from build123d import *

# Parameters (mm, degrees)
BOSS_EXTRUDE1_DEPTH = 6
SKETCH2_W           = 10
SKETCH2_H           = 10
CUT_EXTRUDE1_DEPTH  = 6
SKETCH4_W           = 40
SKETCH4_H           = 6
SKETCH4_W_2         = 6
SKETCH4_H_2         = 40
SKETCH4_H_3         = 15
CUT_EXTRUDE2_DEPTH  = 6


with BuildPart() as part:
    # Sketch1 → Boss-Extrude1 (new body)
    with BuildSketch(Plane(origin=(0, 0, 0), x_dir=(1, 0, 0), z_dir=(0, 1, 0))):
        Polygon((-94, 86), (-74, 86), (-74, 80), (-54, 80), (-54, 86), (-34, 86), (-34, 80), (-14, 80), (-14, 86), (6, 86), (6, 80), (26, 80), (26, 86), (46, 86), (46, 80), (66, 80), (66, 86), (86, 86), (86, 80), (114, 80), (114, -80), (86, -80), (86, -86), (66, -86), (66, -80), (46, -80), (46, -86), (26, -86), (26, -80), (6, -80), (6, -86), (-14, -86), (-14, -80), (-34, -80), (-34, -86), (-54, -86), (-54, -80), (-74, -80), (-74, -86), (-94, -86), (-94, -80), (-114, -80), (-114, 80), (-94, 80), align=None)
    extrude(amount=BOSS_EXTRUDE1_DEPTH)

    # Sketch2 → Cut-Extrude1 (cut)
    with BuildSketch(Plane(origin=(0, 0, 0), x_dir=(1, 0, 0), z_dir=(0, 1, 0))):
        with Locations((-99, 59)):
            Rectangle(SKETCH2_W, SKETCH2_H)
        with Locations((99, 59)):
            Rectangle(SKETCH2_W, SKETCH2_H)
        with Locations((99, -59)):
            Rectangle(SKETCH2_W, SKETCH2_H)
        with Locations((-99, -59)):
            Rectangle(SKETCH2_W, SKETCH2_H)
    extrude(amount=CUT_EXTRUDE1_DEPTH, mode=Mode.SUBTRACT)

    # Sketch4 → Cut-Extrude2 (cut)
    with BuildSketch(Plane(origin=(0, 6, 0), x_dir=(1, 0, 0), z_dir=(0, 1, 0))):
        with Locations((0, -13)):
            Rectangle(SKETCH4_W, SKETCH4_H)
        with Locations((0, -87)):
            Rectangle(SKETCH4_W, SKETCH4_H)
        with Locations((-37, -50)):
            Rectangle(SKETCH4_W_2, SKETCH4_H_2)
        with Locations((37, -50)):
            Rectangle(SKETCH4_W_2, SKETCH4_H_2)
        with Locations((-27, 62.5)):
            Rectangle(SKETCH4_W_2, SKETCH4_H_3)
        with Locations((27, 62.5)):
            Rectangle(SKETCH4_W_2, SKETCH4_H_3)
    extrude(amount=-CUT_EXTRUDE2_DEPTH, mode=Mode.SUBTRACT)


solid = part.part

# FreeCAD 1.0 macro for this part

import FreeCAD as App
import Part
import Sketcher
Q = App.Units.Quantity


def add_polygon(sketch, points):
    """Adds a closed chain of lines whose ends are joined by coincident constraints."""
    first, n = sketch.GeometryCount, len(points)
    for a, b in zip(points, points[1:] + points[:1]):
        sketch.addGeometry(Part.LineSegment(App.Vector(*a, 0), App.Vector(*b, 0)), False)
    for i in range(n):
        sketch.addConstraint(Sketcher.Constraint("Coincident", first + i, 2, first + (i + 1) % n, 1))

doc = App.newDocument("Part")
body = doc.addObject("PartDesign::Body", "Body")

# Sketch on XZ plane
sketch1 = body.newObject("Sketcher::SketchObject", "Sketch")
sketch1.AttachmentSupport = (doc.getObject("XZ_Plane"), [""])
sketch1.MapMode = "FlatFace"
add_polygon(sketch1, [(-74, -86), (-94, -86), (-94, -80), (-114, -80), (-114, 80), (-94, 80), (-94, 86), (-74, 86), (-74, 80), (-54, 80), (-54, 86), (-34, 86), (-34, 80), (-14, 80), (-14, 86), (6, 86), (6, 80), (26, 80), (26, 86), (46, 86), (46, 80), (66, 80), (66, 86), (86, 86), (86, 80), (114, 80), (114, -80), (86, -80), (86, -86), (66, -86), (66, -80), (46, -80), (46, -86), (26, -86), (26, -80), (6, -80), (6, -86), (-14, -86), (-14, -80), (-34, -80), (-34, -86), (-54, -86), (-54, -80), (-74, -80)])  # lines 0-43
sketch1.addConstraint(Sketcher.Constraint("Horizontal", 0))
sketch1.addConstraint(Sketcher.Constraint("Vertical", 1))
sketch1.addConstraint(Sketcher.Constraint("Horizontal", 2))
sketch1.addConstraint(Sketcher.Constraint("Vertical", 3))
sketch1.addConstraint(Sketcher.Constraint("Horizontal", 4))
sketch1.addConstraint(Sketcher.Constraint("Vertical", 5))
sketch1.addConstraint(Sketcher.Constraint("Horizontal", 6))
sketch1.addConstraint(Sketcher.Constraint("Vertical", 7))
sketch1.addConstraint(Sketcher.Constraint("Horizontal", 8))
sketch1.addConstraint(Sketcher.Constraint("Vertical", 9))
sketch1.addConstraint(Sketcher.Constraint("Horizontal", 10))
sketch1.addConstraint(Sketcher.Constraint("Vertical", 11))
sketch1.addConstraint(Sketcher.Constraint("Horizontal", 12))
sketch1.addConstraint(Sketcher.Constraint("Vertical", 13))
sketch1.addConstraint(Sketcher.Constraint("Horizontal", 14))
sketch1.addConstraint(Sketcher.Constraint("Vertical", 15))
sketch1.addConstraint(Sketcher.Constraint("Horizontal", 16))
sketch1.addConstraint(Sketcher.Constraint("Vertical", 17))
sketch1.addConstraint(Sketcher.Constraint("Horizontal", 18))
sketch1.addConstraint(Sketcher.Constraint("Vertical", 19))
sketch1.addConstraint(Sketcher.Constraint("Horizontal", 20))
sketch1.addConstraint(Sketcher.Constraint("Vertical", 21))
sketch1.addConstraint(Sketcher.Constraint("Horizontal", 22))
sketch1.addConstraint(Sketcher.Constraint("Vertical", 23))
sketch1.addConstraint(Sketcher.Constraint("Horizontal", 24))
sketch1.addConstraint(Sketcher.Constraint("Vertical", 25))
sketch1.addConstraint(Sketcher.Constraint("Horizontal", 26))
sketch1.addConstraint(Sketcher.Constraint("Vertical", 27))
sketch1.addConstraint(Sketcher.Constraint("Horizontal", 28))
sketch1.addConstraint(Sketcher.Constraint("Vertical", 29))
sketch1.addConstraint(Sketcher.Constraint("Horizontal", 30))
sketch1.addConstraint(Sketcher.Constraint("Vertical", 31))
sketch1.addConstraint(Sketcher.Constraint("Horizontal", 32))
sketch1.addConstraint(Sketcher.Constraint("Vertical", 33))
sketch1.addConstraint(Sketcher.Constraint("Horizontal", 34))
sketch1.addConstraint(Sketcher.Constraint("Vertical", 35))
sketch1.addConstraint(Sketcher.Constraint("Horizontal", 36))
sketch1.addConstraint(Sketcher.Constraint("Vertical", 37))
sketch1.addConstraint(Sketcher.Constraint("Horizontal", 38))
sketch1.addConstraint(Sketcher.Constraint("Vertical", 39))
sketch1.addConstraint(Sketcher.Constraint("Horizontal", 40))
sketch1.addConstraint(Sketcher.Constraint("Vertical", 41))
sketch1.addConstraint(Sketcher.Constraint("Horizontal", 42))
sketch1.addConstraint(Sketcher.Constraint("Vertical", 43))
sketch1.addConstraint(Sketcher.Constraint("Symmetric", 2, 2, 24, 2, -1, 1))
sketch1.addConstraint(Sketcher.Constraint("Symmetric", 1, 2, 4, 2, -1))
sketch1.addConstraint(Sketcher.Constraint("Symmetric", 23, 2, 26, 2, -1))
sketch1.addConstraint(Sketcher.Constraint("Symmetric", 21, 2, 28, 2, -1))
sketch1.addConstraint(Sketcher.Constraint("Symmetric", 19, 2, 30, 2, -1))
sketch1.addConstraint(Sketcher.Constraint("Symmetric", 17, 2, 32, 2, -1))
sketch1.addConstraint(Sketcher.Constraint("Symmetric", 15, 2, 34, 2, -1))
sketch1.addConstraint(Sketcher.Constraint("Symmetric", 13, 2, 36, 2, -1))
sketch1.addConstraint(Sketcher.Constraint("Symmetric", 11, 2, 38, 2, -1))
sketch1.addConstraint(Sketcher.Constraint("Symmetric", 9, 2, 40, 2, -1))
sketch1.addConstraint(Sketcher.Constraint("Symmetric", 7, 2, 42, 2, -1))
sketch1.addConstraint(Sketcher.Constraint("Horizontal", 4, 2, 7, 2))
sketch1.addConstraint(Sketcher.Constraint("Horizontal", 6, 2, 9, 2))
sketch1.addConstraint(Sketcher.Constraint("Horizontal", 8, 2, 11, 2))
sketch1.addConstraint(Sketcher.Constraint("Horizontal", 10, 2, 13, 2))
sketch1.addConstraint(Sketcher.Constraint("Horizontal", 12, 2, 15, 2))
sketch1.addConstraint(Sketcher.Constraint("Horizontal", 14, 2, 17, 2))
sketch1.addConstraint(Sketcher.Constraint("Horizontal", 16, 2, 19, 2))
sketch1.addConstraint(Sketcher.Constraint("Horizontal", 18, 2, 21, 2))
sketch1.addConstraint(Sketcher.Constraint("Horizontal", 0, 2, 27, 2))
sketch1.addConstraint(Sketcher.Constraint("Equal", 0, 2))
sketch1.addConstraint(Sketcher.Constraint("Equal", 6, 8))
sketch1.addConstraint(Sketcher.Constraint("Equal", 8, 10))
sketch1.addConstraint(Sketcher.Constraint("Equal", 10, 12))
sketch1.addConstraint(Sketcher.Constraint("Equal", 12, 14))
sketch1.addConstraint(Sketcher.Constraint("Equal", 14, 16))
sketch1.addConstraint(Sketcher.Constraint("Equal", 16, 18))
sketch1.addConstraint(Sketcher.Constraint("Equal", 18, 20))
sketch1.addConstraint(Sketcher.Constraint("Equal", 20, 22))
sketch1.addConstraint(Sketcher.Constraint("DistanceX", 0, 2, 0, 1, Q("20 mm")))
sketch1.addConstraint(Sketcher.Constraint("DistanceX", 24, 1, 24, 2, Q("28 mm")))
sketch1.addConstraint(Sketcher.Constraint("DistanceY", 1, 1, 1, 2, Q("6 mm")))
sketch1.addConstraint(Sketcher.Constraint("DistanceY", 3, 1, 3, 2, Q("160 mm")))
pad1 = body.newObject("PartDesign::Pad", "Pad")
pad1.Profile = sketch1
pad1.Length = 6
pad1.Reversed = True

# Sketch on XZ plane
sketch2 = body.newObject("Sketcher::SketchObject", "Sketch001")
sketch2.AttachmentSupport = (doc.getObject("XZ_Plane"), [""])
sketch2.MapMode = "FlatFace"
add_polygon(sketch2, [(-104, -64), (-104, -54), (-94, -54), (-94, -64)])  # lines 0-3
add_polygon(sketch2, [(94, -64), (94, -54), (104, -54), (104, -64)])  # lines 4-7
add_polygon(sketch2, [(94, 54), (94, 64), (104, 64), (104, 54)])  # lines 8-11
add_polygon(sketch2, [(-104, 54), (-104, 64), (-94, 64), (-94, 54)])  # lines 12-15
sketch2.addConstraint(Sketcher.Constraint("Vertical", 0))
sketch2.addConstraint(Sketcher.Constraint("Horizontal", 1))
sketch2.addConstraint(Sketcher.Constraint("Vertical", 2))
sketch2.addConstraint(Sketcher.Constraint("Horizontal", 3))
sketch2.addConstraint(Sketcher.Constraint("Vertical", 4))
sketch2.addConstraint(Sketcher.Constraint("Horizontal", 5))
sketch2.addConstraint(Sketcher.Constraint("Vertical", 6))
sketch2.addConstraint(Sketcher.Constraint("Horizontal", 7))
sketch2.addConstraint(Sketcher.Constraint("Vertical", 8))
sketch2.addConstraint(Sketcher.Constraint("Horizontal", 9))
sketch2.addConstraint(Sketcher.Constraint("Vertical", 10))
sketch2.addConstraint(Sketcher.Constraint("Horizontal", 11))
sketch2.addConstraint(Sketcher.Constraint("Vertical", 12))
sketch2.addConstraint(Sketcher.Constraint("Horizontal", 13))
sketch2.addConstraint(Sketcher.Constraint("Vertical", 14))
sketch2.addConstraint(Sketcher.Constraint("Horizontal", 15))
sketch2.addConstraint(Sketcher.Constraint("Symmetric", 2, 2, 8, 2, -1, 1))
sketch2.addConstraint(Sketcher.Constraint("Symmetric", 0, 2, 10, 2, -1, 1))
sketch2.addConstraint(Sketcher.Constraint("Symmetric", 6, 2, 12, 2, -1, 1))
sketch2.addConstraint(Sketcher.Constraint("Symmetric", 4, 2, 14, 2, -1, 1))
sketch2.addConstraint(Sketcher.Constraint("Symmetric", 1, 2, 4, 2, -2))
sketch2.addConstraint(Sketcher.Constraint("Symmetric", 3, 2, 6, 2, -2))
sketch2.addConstraint(Sketcher.Constraint("Equal", 15, 0))
sketch2.addConstraint(Sketcher.Constraint("DistanceX", 1, 1, 1, 2, Q("10 mm")))
sketch2.addConstraint(Sketcher.Constraint("DistanceX", 0, 2, -1, 1, Q("104 mm")))
sketch2.addConstraint(Sketcher.Constraint("DistanceY", 0, 2, -1, 1, Q("54 mm")))
pocket1 = body.newObject("PartDesign::Pocket", "Pocket")
pocket1.Profile = sketch2
pocket1.Length = 6

# Sketch on XZ plane
sketch3 = body.newObject("Sketcher::SketchObject", "Sketch002")
sketch3.AttachmentSupport = (doc.getObject("XZ_Plane"), [""])
sketch3.MapMode = "FlatFace"
sketch3.AttachmentOffset = App.Placement(App.Vector(0, 0, -6), App.Rotation())
add_polygon(sketch3, [(-20, 10), (-20, 16), (20, 16), (20, 10)])  # lines 0-3
add_polygon(sketch3, [(-20, 84), (-20, 90), (20, 90), (20, 84)])  # lines 4-7
add_polygon(sketch3, [(-40, 30), (-40, 70), (-34, 70), (-34, 30)])  # lines 8-11
add_polygon(sketch3, [(34, 30), (34, 70), (40, 70), (40, 30)])  # lines 12-15
add_polygon(sketch3, [(-30, -70), (-30, -55), (-24, -55), (-24, -70)])  # lines 16-19
add_polygon(sketch3, [(24, -70), (24, -55), (30, -55), (30, -70)])  # lines 20-23
sketch3.addConstraint(Sketcher.Constraint("Vertical", 0))
sketch3.addConstraint(Sketcher.Constraint("Horizontal", 1))
sketch3.addConstraint(Sketcher.Constraint("Vertical", 2))
sketch3.addConstraint(Sketcher.Constraint("Horizontal", 3))
sketch3.addConstraint(Sketcher.Constraint("Vertical", 4))
sketch3.addConstraint(Sketcher.Constraint("Horizontal", 5))
sketch3.addConstraint(Sketcher.Constraint("Vertical", 6))
sketch3.addConstraint(Sketcher.Constraint("Horizontal", 7))
sketch3.addConstraint(Sketcher.Constraint("Vertical", 8))
sketch3.addConstraint(Sketcher.Constraint("Horizontal", 9))
sketch3.addConstraint(Sketcher.Constraint("Vertical", 10))
sketch3.addConstraint(Sketcher.Constraint("Horizontal", 11))
sketch3.addConstraint(Sketcher.Constraint("Vertical", 12))
sketch3.addConstraint(Sketcher.Constraint("Horizontal", 13))
sketch3.addConstraint(Sketcher.Constraint("Vertical", 14))
sketch3.addConstraint(Sketcher.Constraint("Horizontal", 15))
sketch3.addConstraint(Sketcher.Constraint("Vertical", 16))
sketch3.addConstraint(Sketcher.Constraint("Horizontal", 17))
sketch3.addConstraint(Sketcher.Constraint("Vertical", 18))
sketch3.addConstraint(Sketcher.Constraint("Horizontal", 19))
sketch3.addConstraint(Sketcher.Constraint("Vertical", 20))
sketch3.addConstraint(Sketcher.Constraint("Horizontal", 21))
sketch3.addConstraint(Sketcher.Constraint("Vertical", 22))
sketch3.addConstraint(Sketcher.Constraint("Horizontal", 23))
sketch3.addConstraint(Sketcher.Constraint("Symmetric", 9, 2, 12, 2, -2))
sketch3.addConstraint(Sketcher.Constraint("Symmetric", 11, 2, 14, 2, -2))
sketch3.addConstraint(Sketcher.Constraint("Symmetric", 17, 2, 20, 2, -2))
sketch3.addConstraint(Sketcher.Constraint("Symmetric", 19, 2, 22, 2, -2))
sketch3.addConstraint(Sketcher.Constraint("Vertical", 3, 2, 4, 2))
sketch3.addConstraint(Sketcher.Constraint("Vertical", 2, 2, 5, 2))
sketch3.addConstraint(Sketcher.Constraint("Equal", 15, 17))
sketch3.addConstraint(Sketcher.Constraint("Equal", 23, 0))
sketch3.addConstraint(Sketcher.Constraint("Equal", 2, 4))
sketch3.addConstraint(Sketcher.Constraint("Equal", 7, 8))
sketch3.addConstraint(Sketcher.Constraint("DistanceX", 1, 1, 1, 2, Q("40 mm")))
sketch3.addConstraint(Sketcher.Constraint("DistanceX", 9, 1, 9, 2, Q("6 mm")))
sketch3.addConstraint(Sketcher.Constraint("DistanceY", 16, 1, 16, 2, Q("15 mm")))
sketch3.addConstraint(Sketcher.Constraint("DistanceX", 0, 2, -1, 1, Q("20 mm")))
sketch3.addConstraint(Sketcher.Constraint("DistanceY", -1, 1, 0, 2, Q("16 mm")))
sketch3.addConstraint(Sketcher.Constraint("DistanceY", -1, 1, 4, 2, Q("90 mm")))
sketch3.addConstraint(Sketcher.Constraint("DistanceX", 8, 2, -1, 1, Q("40 mm")))
sketch3.addConstraint(Sketcher.Constraint("DistanceY", -1, 1, 8, 2, Q("70 mm")))
sketch3.addConstraint(Sketcher.Constraint("DistanceX", 16, 2, -1, 1, Q("30 mm")))
sketch3.addConstraint(Sketcher.Constraint("DistanceY", 16, 2, -1, 1, Q("55 mm")))
pocket2 = body.newObject("PartDesign::Pocket", "Pocket001")
pocket2.Profile = sketch3
pocket2.Length = 6
pocket2.Reversed = True

doc.recompute()
